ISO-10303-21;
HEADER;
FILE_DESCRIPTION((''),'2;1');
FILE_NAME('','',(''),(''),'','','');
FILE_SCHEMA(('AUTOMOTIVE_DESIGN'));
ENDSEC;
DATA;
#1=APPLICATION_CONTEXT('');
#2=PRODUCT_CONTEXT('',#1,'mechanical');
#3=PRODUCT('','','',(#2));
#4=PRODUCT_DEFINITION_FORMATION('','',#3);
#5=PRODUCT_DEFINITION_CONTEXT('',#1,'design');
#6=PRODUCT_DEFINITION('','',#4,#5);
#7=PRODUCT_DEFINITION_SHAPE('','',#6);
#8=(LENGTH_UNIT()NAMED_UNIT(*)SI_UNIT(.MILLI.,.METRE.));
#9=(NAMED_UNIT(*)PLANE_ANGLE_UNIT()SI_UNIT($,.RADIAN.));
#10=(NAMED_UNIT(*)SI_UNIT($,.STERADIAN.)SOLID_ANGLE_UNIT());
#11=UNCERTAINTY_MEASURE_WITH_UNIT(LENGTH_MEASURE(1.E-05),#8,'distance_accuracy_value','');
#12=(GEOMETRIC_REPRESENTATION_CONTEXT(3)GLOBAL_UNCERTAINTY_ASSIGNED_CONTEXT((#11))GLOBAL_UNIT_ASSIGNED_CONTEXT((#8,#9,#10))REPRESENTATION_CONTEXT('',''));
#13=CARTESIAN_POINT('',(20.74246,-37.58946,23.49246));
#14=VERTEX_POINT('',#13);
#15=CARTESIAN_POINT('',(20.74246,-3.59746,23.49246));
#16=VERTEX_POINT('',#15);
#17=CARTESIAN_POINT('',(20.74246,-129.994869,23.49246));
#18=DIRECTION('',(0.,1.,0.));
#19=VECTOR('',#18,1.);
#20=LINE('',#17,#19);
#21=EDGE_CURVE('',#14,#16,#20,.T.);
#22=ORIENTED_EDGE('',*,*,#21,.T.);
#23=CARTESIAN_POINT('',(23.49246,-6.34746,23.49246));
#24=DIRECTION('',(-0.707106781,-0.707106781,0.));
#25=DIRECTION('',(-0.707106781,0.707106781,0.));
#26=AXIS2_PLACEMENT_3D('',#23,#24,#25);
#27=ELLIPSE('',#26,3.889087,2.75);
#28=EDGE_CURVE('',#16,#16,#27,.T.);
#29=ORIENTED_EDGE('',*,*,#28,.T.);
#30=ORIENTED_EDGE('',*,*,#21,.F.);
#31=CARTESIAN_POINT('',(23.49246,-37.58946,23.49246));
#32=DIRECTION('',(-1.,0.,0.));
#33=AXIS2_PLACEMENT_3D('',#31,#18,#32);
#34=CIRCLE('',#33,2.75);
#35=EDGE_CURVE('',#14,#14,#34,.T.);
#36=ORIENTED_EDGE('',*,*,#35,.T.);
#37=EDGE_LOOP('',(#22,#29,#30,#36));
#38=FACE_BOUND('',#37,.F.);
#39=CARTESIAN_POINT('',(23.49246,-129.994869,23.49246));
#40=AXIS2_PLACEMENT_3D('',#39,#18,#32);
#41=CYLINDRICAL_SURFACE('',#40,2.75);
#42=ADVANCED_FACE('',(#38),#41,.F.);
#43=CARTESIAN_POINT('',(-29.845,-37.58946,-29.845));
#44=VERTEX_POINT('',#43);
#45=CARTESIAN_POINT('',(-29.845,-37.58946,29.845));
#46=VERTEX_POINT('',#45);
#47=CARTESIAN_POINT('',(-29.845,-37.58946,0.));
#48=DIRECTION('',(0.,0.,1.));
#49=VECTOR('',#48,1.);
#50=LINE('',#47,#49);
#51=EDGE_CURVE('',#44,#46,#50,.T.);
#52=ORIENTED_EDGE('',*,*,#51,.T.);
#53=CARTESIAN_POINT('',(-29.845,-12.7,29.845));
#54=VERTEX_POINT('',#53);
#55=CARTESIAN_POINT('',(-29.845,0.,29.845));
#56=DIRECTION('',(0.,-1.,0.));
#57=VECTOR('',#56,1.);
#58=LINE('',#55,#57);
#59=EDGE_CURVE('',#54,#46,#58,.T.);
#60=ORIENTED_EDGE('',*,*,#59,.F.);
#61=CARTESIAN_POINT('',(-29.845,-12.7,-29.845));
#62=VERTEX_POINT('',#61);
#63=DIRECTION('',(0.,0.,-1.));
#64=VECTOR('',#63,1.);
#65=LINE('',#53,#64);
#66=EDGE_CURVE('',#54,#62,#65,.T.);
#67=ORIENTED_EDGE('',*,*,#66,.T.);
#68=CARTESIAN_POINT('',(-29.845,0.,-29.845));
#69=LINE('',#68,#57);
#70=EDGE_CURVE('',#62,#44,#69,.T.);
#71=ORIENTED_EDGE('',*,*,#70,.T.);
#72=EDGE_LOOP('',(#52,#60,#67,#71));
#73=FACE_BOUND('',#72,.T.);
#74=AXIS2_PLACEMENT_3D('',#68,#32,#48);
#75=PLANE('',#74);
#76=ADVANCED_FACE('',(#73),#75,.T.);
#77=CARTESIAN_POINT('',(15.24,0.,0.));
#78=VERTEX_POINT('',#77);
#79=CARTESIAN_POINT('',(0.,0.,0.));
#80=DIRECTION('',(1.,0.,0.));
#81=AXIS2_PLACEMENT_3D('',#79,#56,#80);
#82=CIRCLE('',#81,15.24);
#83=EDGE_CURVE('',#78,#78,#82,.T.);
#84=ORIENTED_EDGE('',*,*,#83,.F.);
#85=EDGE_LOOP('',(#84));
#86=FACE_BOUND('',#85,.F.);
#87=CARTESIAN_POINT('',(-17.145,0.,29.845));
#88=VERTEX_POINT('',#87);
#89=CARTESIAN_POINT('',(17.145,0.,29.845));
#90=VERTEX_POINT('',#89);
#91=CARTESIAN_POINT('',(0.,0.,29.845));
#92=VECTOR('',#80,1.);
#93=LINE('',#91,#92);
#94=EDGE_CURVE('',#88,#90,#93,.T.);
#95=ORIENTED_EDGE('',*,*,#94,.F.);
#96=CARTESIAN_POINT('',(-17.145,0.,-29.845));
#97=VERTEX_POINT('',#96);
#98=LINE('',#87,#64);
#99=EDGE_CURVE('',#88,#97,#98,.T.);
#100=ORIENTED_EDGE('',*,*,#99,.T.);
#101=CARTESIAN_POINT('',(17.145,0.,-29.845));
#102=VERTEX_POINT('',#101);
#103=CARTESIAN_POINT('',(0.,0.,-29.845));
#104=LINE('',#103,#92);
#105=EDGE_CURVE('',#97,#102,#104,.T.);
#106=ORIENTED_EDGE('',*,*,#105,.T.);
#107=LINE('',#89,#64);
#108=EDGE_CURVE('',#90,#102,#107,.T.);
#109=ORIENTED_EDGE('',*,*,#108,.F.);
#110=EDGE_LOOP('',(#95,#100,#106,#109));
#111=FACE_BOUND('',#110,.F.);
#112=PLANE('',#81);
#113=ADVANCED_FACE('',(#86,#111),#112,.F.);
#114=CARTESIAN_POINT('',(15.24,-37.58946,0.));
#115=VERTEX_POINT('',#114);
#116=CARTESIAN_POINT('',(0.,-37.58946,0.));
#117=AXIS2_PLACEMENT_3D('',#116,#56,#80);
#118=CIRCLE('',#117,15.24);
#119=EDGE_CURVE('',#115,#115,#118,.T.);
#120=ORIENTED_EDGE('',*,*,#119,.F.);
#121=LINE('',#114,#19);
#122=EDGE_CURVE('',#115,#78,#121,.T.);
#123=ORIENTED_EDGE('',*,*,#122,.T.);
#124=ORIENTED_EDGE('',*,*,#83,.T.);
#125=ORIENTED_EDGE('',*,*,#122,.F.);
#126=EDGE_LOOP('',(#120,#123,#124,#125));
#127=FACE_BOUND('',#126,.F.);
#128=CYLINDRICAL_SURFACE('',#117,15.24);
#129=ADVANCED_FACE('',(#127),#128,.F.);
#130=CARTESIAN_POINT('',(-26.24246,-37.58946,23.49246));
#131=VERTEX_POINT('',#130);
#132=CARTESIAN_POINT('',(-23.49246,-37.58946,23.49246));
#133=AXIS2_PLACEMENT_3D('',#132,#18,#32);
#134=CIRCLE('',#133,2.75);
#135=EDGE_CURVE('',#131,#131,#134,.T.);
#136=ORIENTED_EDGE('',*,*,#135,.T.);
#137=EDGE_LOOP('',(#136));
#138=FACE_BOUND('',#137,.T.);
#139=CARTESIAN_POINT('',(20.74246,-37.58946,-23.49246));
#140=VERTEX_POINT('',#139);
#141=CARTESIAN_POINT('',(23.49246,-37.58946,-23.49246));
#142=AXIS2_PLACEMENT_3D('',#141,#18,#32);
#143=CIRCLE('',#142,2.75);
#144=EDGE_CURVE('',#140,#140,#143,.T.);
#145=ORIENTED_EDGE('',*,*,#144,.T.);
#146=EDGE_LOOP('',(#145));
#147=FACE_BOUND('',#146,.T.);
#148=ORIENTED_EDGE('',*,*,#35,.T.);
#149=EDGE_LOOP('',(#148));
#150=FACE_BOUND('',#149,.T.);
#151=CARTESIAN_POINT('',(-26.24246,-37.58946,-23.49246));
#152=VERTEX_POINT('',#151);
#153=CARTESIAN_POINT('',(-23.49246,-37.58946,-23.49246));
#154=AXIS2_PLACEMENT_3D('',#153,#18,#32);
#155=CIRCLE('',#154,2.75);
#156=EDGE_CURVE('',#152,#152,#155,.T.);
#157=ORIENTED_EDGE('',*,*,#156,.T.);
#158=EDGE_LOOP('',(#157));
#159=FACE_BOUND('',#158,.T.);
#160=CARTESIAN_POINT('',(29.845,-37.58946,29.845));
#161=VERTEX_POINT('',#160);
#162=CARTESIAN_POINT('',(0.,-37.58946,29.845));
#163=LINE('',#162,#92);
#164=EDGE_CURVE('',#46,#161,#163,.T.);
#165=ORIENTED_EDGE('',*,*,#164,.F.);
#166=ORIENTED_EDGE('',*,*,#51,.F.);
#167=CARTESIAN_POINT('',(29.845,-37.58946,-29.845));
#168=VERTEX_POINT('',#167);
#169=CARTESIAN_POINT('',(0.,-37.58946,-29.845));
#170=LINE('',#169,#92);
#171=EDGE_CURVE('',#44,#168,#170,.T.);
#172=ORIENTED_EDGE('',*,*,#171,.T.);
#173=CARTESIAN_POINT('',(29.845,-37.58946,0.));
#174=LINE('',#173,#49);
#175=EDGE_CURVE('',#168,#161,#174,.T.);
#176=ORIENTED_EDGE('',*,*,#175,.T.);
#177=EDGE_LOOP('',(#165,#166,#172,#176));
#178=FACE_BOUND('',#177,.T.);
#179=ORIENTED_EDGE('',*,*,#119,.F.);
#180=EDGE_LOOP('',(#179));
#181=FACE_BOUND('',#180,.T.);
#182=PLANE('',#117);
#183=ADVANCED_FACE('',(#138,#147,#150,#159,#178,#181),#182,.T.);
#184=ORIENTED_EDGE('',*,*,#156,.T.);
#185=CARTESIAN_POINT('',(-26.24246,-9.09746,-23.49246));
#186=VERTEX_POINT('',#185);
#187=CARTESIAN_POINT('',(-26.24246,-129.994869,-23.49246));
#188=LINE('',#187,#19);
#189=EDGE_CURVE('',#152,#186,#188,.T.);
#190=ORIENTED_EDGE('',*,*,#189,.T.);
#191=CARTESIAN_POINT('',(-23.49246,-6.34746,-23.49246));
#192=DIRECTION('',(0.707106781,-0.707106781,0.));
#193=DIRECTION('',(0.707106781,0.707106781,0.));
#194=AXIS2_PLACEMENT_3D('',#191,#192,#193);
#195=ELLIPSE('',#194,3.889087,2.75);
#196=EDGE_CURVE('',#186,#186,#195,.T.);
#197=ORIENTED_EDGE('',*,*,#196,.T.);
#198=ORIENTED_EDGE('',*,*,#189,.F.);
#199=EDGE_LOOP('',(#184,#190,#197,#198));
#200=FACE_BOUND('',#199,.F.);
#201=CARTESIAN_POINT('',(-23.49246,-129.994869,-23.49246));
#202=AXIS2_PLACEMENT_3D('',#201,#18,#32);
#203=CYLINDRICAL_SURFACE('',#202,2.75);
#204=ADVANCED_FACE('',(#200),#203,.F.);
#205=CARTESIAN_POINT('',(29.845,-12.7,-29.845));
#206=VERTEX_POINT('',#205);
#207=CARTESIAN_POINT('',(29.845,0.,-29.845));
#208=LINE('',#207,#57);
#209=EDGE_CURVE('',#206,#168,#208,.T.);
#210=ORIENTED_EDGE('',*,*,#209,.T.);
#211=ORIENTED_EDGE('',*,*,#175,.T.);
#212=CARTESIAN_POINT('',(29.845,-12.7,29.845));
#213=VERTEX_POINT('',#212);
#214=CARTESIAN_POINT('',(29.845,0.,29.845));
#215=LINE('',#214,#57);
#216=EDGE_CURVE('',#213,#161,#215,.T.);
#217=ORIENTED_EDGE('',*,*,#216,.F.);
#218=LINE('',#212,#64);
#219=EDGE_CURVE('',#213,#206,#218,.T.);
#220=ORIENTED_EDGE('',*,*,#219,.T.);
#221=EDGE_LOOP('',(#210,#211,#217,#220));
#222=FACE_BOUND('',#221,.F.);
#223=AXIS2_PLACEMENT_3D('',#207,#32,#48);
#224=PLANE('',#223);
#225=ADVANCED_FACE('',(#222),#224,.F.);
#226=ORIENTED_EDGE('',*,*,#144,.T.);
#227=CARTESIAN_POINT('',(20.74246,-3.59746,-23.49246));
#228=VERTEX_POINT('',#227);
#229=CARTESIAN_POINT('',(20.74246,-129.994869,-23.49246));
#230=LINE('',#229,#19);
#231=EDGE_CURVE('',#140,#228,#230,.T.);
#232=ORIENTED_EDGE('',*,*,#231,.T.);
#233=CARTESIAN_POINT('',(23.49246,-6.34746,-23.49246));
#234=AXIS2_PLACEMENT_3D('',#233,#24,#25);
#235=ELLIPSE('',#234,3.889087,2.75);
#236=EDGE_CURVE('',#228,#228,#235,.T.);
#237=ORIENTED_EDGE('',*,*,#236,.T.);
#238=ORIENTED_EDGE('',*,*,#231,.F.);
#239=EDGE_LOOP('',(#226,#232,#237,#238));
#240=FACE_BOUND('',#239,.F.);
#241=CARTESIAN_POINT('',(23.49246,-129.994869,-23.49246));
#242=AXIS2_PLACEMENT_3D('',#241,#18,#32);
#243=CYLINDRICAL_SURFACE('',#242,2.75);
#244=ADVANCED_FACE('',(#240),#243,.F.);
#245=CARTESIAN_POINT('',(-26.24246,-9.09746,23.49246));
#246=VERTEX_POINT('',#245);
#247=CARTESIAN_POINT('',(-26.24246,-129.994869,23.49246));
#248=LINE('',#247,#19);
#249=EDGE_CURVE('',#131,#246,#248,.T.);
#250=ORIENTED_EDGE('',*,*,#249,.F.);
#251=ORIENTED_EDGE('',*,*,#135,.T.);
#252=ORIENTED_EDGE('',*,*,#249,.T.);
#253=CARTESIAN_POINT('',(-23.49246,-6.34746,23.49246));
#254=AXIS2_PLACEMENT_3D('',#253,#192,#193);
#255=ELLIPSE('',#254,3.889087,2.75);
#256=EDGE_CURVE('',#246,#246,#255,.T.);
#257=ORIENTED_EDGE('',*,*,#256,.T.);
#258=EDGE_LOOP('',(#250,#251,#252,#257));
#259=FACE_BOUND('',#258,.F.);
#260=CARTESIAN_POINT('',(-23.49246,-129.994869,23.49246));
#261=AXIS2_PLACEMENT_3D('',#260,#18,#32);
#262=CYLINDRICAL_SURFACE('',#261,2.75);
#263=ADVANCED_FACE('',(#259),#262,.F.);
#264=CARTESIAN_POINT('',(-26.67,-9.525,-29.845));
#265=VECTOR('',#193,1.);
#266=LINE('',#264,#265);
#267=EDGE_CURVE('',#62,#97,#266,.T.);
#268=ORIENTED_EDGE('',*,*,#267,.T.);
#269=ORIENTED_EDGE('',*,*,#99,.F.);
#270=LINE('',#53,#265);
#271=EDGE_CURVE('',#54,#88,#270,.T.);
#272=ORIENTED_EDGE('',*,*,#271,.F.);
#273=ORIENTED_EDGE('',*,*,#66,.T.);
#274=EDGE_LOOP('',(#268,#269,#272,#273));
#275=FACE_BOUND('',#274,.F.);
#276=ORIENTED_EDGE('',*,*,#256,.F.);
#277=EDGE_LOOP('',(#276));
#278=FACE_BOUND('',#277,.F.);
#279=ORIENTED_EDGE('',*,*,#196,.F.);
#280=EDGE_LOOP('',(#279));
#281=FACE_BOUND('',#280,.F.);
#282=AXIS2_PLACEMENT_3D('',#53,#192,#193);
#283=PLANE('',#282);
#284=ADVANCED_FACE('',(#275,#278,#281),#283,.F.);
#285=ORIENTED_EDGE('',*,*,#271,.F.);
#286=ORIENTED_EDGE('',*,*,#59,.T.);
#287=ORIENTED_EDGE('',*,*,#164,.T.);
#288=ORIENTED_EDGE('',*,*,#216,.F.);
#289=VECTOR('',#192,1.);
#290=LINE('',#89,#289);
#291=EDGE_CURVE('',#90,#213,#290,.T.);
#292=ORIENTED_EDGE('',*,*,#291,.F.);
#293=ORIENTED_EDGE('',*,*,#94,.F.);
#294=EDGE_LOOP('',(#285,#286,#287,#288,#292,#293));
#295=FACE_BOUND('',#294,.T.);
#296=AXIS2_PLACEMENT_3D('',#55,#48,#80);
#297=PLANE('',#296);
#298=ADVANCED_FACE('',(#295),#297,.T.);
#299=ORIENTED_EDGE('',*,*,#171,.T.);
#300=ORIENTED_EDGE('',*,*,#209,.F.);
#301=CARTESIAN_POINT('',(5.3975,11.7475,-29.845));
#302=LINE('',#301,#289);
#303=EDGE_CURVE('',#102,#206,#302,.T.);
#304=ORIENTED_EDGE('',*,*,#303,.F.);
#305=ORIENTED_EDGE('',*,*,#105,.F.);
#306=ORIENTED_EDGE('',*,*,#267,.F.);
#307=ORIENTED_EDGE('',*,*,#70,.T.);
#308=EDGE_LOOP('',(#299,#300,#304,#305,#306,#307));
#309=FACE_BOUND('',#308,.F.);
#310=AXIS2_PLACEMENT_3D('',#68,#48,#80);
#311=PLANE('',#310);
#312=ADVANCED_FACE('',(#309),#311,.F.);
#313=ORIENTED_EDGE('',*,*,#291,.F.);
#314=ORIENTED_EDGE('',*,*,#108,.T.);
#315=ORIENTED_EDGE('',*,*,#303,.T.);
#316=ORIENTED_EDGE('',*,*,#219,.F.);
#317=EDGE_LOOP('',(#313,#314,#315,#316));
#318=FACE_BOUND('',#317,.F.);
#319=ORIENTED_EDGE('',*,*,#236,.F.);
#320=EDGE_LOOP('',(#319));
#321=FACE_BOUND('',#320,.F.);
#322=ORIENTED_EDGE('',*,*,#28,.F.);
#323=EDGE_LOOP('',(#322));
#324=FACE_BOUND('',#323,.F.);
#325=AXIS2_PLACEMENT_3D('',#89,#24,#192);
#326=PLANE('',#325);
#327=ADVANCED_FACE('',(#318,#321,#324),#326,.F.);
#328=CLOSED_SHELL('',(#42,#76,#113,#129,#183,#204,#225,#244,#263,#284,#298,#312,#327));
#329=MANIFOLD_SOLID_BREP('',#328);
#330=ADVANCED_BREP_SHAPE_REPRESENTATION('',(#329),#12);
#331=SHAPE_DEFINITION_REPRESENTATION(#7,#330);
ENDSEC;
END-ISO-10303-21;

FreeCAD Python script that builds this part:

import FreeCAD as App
import Part
import Sketcher

V = App.Vector
Q = App.Units.Quantity


def add_polygon(sketch, points):
    """Adds a closed chain of lines whose ends are joined by coincident constraints."""
    first, n = sketch.GeometryCount, len(points)
    for a, b in zip(points, points[1:] + points[:1]):
        sketch.addGeometry(Part.LineSegment(App.Vector(*a, 0), App.Vector(*b, 0)), False)
    for i in range(n):
        sketch.addConstraint(Sketcher.Constraint("Coincident", first + i, 2, first + (i + 1) % n, 1))

doc = App.newDocument("Part")
body = doc.addObject("PartDesign::Body", "Body")

sketch1 = body.newObject("Sketcher::SketchObject", "Sketch")
sketch1.AttachmentSupport = (doc.getObject("XZ_Plane"), [""])
sketch1.MapMode = "FlatFace"
add_polygon(sketch1, [(-29.845, 29.845), (-29.845, -29.845), (29.845, -29.845), (29.845, 29.845)])
sketch1.addConstraint(Sketcher.Constraint("Vertical", 0))
sketch1.addConstraint(Sketcher.Constraint("Horizontal", 1))
sketch1.addConstraint(Sketcher.Constraint("Vertical", 2))
sketch1.addConstraint(Sketcher.Constraint("Horizontal", 3))
sketch1.addConstraint(Sketcher.Constraint("Symmetric", 0, 2, 2, 2, -1, 1))
sketch1.addConstraint(Sketcher.Constraint("Equal", 3, 0))
sketch1.addConstraint(Sketcher.Constraint("DistanceX", 1, 1, 1, 2, Q("2.35 in")))
pad1 = body.newObject("PartDesign::Pad", "Pad")
pad1.Profile = sketch1
pad1.Length = Q("1.4799 in")

sketch2 = body.newObject("Sketcher::SketchObject", "Sketch001")
sketch2.AttachmentSupport = (doc.getObject("XZ_Plane"), [""])
sketch2.MapMode = "FlatFace"
sketch2.AttachmentOffset = App.Placement(V(0, 0, 1.4799 * 25.4), App.Rotation())
sketch2.addGeometry(Part.Circle(V(0, 0, 0), V(0, 0, 1), 15.24), False)
sketch2.addConstraint(Sketcher.Constraint("Coincident", 0, 3, -1, 1))
sketch2.addConstraint(Sketcher.Constraint("Diameter", 0, Q("1.2 in")))
pocket1 = body.newObject("PartDesign::Pocket", "Pocket")
pocket1.Profile = sketch2
pocket1.Type = "ThroughAll"

sketch3 = body.newObject("Sketcher::SketchObject", "Sketch002")
sketch3.AttachmentSupport = (doc.getObject("XY_Plane"), [""])
sketch3.MapMode = "FlatFace"
sketch3.AttachmentOffset = App.Placement(V(0, 0, 1.175 * 25.4), App.Rotation())
add_polygon(sketch3, [(-29.845, -12.7), (-17.145, 0), (-29.845, 0)])
add_polygon(sketch3, [(29.845, -12.7), (29.845, 0), (17.145, 0)])
sketch3.addConstraint(Sketcher.Constraint("Horizontal", 1))
sketch3.addConstraint(Sketcher.Constraint("Vertical", 2))
sketch3.addConstraint(Sketcher.Constraint("Vertical", 3))
sketch3.addConstraint(Sketcher.Constraint("Horizontal", 4))
sketch3.addConstraint(Sketcher.Constraint("Symmetric", 1, 2, 3, 2, -1, 1))
sketch3.addConstraint(Sketcher.Constraint("Symmetric", 0, 2, 4, 2, -2))
sketch3.addConstraint(Sketcher.Constraint("Perpendicular", 0, 5))
sketch3.addConstraint(Sketcher.Constraint("Horizontal", 2, 2, 5, 2))
sketch3.addConstraint(Sketcher.Constraint("DistanceX", 1, 2, 1, 1, Q("0.5 in")))
sketch3.addConstraint(Sketcher.Constraint("DistanceX", 0, 2, 3, 2, Q("1.85 in")))
pocket2 = body.newObject("PartDesign::Pocket", "Pocket001")
pocket2.Profile = sketch3
pocket2.Type = "ThroughAll"

sketch4 = body.newObject("Sketcher::SketchObject", "Sketch003")
sketch4.AttachmentSupport = (doc.getObject("XZ_Plane"), [""])
sketch4.MapMode = "FlatFace"
sketch4.AttachmentOffset = App.Placement(V(0, 0, 1.4799 * 25.4), App.Rotation())
sketch4.addGeometry(Part.Circle(V(-23.49246, 23.49246, 0), V(0, 0, 1), 2.75), False)
sketch4.addGeometry(Part.Circle(V(23.49246, 23.49246, 0), V(0, 0, 1), 2.75), False)
sketch4.addGeometry(Part.Circle(V(23.49246, -23.49246, 0), V(0, 0, 1), 2.75), False)
sketch4.addGeometry(Part.Circle(V(-23.49246, -23.49246, 0), V(0, 0, 1), 2.75), False)
sketch4.addConstraint(Sketcher.Constraint("Equal", 0, 1))
sketch4.addConstraint(Sketcher.Constraint("Equal", 1, 2))
sketch4.addConstraint(Sketcher.Constraint("Equal", 2, 3))
sketch4.addConstraint(Sketcher.Constraint("Symmetric", 0, 3, 2, 3, -1, 1))
sketch4.addConstraint(Sketcher.Constraint("Symmetric", 1, 3, 3, 3, -1, 1))
sketch4.addConstraint(Sketcher.Constraint("Symmetric", 0, 3, 1, 3, -2))
sketch4.addConstraint(Sketcher.Constraint("Diameter", 0, Q("5.5 mm")))
sketch4.addConstraint(Sketcher.Constraint("DistanceX", 0, 3, -1, 1, Q("0.9249 in")))
sketch4.addConstraint(Sketcher.Constraint("DistanceY", -1, 1, 0, 3, Q("0.9249 in")))
doc.recompute()
hole = body.newObject("PartDesign::Hole", "Hole")
hole.Profile = sketch4
hole.ThreadType = "None"
hole.Diameter = 5.5
hole.DepthType = "ThroughAll"

doc.recompute()
